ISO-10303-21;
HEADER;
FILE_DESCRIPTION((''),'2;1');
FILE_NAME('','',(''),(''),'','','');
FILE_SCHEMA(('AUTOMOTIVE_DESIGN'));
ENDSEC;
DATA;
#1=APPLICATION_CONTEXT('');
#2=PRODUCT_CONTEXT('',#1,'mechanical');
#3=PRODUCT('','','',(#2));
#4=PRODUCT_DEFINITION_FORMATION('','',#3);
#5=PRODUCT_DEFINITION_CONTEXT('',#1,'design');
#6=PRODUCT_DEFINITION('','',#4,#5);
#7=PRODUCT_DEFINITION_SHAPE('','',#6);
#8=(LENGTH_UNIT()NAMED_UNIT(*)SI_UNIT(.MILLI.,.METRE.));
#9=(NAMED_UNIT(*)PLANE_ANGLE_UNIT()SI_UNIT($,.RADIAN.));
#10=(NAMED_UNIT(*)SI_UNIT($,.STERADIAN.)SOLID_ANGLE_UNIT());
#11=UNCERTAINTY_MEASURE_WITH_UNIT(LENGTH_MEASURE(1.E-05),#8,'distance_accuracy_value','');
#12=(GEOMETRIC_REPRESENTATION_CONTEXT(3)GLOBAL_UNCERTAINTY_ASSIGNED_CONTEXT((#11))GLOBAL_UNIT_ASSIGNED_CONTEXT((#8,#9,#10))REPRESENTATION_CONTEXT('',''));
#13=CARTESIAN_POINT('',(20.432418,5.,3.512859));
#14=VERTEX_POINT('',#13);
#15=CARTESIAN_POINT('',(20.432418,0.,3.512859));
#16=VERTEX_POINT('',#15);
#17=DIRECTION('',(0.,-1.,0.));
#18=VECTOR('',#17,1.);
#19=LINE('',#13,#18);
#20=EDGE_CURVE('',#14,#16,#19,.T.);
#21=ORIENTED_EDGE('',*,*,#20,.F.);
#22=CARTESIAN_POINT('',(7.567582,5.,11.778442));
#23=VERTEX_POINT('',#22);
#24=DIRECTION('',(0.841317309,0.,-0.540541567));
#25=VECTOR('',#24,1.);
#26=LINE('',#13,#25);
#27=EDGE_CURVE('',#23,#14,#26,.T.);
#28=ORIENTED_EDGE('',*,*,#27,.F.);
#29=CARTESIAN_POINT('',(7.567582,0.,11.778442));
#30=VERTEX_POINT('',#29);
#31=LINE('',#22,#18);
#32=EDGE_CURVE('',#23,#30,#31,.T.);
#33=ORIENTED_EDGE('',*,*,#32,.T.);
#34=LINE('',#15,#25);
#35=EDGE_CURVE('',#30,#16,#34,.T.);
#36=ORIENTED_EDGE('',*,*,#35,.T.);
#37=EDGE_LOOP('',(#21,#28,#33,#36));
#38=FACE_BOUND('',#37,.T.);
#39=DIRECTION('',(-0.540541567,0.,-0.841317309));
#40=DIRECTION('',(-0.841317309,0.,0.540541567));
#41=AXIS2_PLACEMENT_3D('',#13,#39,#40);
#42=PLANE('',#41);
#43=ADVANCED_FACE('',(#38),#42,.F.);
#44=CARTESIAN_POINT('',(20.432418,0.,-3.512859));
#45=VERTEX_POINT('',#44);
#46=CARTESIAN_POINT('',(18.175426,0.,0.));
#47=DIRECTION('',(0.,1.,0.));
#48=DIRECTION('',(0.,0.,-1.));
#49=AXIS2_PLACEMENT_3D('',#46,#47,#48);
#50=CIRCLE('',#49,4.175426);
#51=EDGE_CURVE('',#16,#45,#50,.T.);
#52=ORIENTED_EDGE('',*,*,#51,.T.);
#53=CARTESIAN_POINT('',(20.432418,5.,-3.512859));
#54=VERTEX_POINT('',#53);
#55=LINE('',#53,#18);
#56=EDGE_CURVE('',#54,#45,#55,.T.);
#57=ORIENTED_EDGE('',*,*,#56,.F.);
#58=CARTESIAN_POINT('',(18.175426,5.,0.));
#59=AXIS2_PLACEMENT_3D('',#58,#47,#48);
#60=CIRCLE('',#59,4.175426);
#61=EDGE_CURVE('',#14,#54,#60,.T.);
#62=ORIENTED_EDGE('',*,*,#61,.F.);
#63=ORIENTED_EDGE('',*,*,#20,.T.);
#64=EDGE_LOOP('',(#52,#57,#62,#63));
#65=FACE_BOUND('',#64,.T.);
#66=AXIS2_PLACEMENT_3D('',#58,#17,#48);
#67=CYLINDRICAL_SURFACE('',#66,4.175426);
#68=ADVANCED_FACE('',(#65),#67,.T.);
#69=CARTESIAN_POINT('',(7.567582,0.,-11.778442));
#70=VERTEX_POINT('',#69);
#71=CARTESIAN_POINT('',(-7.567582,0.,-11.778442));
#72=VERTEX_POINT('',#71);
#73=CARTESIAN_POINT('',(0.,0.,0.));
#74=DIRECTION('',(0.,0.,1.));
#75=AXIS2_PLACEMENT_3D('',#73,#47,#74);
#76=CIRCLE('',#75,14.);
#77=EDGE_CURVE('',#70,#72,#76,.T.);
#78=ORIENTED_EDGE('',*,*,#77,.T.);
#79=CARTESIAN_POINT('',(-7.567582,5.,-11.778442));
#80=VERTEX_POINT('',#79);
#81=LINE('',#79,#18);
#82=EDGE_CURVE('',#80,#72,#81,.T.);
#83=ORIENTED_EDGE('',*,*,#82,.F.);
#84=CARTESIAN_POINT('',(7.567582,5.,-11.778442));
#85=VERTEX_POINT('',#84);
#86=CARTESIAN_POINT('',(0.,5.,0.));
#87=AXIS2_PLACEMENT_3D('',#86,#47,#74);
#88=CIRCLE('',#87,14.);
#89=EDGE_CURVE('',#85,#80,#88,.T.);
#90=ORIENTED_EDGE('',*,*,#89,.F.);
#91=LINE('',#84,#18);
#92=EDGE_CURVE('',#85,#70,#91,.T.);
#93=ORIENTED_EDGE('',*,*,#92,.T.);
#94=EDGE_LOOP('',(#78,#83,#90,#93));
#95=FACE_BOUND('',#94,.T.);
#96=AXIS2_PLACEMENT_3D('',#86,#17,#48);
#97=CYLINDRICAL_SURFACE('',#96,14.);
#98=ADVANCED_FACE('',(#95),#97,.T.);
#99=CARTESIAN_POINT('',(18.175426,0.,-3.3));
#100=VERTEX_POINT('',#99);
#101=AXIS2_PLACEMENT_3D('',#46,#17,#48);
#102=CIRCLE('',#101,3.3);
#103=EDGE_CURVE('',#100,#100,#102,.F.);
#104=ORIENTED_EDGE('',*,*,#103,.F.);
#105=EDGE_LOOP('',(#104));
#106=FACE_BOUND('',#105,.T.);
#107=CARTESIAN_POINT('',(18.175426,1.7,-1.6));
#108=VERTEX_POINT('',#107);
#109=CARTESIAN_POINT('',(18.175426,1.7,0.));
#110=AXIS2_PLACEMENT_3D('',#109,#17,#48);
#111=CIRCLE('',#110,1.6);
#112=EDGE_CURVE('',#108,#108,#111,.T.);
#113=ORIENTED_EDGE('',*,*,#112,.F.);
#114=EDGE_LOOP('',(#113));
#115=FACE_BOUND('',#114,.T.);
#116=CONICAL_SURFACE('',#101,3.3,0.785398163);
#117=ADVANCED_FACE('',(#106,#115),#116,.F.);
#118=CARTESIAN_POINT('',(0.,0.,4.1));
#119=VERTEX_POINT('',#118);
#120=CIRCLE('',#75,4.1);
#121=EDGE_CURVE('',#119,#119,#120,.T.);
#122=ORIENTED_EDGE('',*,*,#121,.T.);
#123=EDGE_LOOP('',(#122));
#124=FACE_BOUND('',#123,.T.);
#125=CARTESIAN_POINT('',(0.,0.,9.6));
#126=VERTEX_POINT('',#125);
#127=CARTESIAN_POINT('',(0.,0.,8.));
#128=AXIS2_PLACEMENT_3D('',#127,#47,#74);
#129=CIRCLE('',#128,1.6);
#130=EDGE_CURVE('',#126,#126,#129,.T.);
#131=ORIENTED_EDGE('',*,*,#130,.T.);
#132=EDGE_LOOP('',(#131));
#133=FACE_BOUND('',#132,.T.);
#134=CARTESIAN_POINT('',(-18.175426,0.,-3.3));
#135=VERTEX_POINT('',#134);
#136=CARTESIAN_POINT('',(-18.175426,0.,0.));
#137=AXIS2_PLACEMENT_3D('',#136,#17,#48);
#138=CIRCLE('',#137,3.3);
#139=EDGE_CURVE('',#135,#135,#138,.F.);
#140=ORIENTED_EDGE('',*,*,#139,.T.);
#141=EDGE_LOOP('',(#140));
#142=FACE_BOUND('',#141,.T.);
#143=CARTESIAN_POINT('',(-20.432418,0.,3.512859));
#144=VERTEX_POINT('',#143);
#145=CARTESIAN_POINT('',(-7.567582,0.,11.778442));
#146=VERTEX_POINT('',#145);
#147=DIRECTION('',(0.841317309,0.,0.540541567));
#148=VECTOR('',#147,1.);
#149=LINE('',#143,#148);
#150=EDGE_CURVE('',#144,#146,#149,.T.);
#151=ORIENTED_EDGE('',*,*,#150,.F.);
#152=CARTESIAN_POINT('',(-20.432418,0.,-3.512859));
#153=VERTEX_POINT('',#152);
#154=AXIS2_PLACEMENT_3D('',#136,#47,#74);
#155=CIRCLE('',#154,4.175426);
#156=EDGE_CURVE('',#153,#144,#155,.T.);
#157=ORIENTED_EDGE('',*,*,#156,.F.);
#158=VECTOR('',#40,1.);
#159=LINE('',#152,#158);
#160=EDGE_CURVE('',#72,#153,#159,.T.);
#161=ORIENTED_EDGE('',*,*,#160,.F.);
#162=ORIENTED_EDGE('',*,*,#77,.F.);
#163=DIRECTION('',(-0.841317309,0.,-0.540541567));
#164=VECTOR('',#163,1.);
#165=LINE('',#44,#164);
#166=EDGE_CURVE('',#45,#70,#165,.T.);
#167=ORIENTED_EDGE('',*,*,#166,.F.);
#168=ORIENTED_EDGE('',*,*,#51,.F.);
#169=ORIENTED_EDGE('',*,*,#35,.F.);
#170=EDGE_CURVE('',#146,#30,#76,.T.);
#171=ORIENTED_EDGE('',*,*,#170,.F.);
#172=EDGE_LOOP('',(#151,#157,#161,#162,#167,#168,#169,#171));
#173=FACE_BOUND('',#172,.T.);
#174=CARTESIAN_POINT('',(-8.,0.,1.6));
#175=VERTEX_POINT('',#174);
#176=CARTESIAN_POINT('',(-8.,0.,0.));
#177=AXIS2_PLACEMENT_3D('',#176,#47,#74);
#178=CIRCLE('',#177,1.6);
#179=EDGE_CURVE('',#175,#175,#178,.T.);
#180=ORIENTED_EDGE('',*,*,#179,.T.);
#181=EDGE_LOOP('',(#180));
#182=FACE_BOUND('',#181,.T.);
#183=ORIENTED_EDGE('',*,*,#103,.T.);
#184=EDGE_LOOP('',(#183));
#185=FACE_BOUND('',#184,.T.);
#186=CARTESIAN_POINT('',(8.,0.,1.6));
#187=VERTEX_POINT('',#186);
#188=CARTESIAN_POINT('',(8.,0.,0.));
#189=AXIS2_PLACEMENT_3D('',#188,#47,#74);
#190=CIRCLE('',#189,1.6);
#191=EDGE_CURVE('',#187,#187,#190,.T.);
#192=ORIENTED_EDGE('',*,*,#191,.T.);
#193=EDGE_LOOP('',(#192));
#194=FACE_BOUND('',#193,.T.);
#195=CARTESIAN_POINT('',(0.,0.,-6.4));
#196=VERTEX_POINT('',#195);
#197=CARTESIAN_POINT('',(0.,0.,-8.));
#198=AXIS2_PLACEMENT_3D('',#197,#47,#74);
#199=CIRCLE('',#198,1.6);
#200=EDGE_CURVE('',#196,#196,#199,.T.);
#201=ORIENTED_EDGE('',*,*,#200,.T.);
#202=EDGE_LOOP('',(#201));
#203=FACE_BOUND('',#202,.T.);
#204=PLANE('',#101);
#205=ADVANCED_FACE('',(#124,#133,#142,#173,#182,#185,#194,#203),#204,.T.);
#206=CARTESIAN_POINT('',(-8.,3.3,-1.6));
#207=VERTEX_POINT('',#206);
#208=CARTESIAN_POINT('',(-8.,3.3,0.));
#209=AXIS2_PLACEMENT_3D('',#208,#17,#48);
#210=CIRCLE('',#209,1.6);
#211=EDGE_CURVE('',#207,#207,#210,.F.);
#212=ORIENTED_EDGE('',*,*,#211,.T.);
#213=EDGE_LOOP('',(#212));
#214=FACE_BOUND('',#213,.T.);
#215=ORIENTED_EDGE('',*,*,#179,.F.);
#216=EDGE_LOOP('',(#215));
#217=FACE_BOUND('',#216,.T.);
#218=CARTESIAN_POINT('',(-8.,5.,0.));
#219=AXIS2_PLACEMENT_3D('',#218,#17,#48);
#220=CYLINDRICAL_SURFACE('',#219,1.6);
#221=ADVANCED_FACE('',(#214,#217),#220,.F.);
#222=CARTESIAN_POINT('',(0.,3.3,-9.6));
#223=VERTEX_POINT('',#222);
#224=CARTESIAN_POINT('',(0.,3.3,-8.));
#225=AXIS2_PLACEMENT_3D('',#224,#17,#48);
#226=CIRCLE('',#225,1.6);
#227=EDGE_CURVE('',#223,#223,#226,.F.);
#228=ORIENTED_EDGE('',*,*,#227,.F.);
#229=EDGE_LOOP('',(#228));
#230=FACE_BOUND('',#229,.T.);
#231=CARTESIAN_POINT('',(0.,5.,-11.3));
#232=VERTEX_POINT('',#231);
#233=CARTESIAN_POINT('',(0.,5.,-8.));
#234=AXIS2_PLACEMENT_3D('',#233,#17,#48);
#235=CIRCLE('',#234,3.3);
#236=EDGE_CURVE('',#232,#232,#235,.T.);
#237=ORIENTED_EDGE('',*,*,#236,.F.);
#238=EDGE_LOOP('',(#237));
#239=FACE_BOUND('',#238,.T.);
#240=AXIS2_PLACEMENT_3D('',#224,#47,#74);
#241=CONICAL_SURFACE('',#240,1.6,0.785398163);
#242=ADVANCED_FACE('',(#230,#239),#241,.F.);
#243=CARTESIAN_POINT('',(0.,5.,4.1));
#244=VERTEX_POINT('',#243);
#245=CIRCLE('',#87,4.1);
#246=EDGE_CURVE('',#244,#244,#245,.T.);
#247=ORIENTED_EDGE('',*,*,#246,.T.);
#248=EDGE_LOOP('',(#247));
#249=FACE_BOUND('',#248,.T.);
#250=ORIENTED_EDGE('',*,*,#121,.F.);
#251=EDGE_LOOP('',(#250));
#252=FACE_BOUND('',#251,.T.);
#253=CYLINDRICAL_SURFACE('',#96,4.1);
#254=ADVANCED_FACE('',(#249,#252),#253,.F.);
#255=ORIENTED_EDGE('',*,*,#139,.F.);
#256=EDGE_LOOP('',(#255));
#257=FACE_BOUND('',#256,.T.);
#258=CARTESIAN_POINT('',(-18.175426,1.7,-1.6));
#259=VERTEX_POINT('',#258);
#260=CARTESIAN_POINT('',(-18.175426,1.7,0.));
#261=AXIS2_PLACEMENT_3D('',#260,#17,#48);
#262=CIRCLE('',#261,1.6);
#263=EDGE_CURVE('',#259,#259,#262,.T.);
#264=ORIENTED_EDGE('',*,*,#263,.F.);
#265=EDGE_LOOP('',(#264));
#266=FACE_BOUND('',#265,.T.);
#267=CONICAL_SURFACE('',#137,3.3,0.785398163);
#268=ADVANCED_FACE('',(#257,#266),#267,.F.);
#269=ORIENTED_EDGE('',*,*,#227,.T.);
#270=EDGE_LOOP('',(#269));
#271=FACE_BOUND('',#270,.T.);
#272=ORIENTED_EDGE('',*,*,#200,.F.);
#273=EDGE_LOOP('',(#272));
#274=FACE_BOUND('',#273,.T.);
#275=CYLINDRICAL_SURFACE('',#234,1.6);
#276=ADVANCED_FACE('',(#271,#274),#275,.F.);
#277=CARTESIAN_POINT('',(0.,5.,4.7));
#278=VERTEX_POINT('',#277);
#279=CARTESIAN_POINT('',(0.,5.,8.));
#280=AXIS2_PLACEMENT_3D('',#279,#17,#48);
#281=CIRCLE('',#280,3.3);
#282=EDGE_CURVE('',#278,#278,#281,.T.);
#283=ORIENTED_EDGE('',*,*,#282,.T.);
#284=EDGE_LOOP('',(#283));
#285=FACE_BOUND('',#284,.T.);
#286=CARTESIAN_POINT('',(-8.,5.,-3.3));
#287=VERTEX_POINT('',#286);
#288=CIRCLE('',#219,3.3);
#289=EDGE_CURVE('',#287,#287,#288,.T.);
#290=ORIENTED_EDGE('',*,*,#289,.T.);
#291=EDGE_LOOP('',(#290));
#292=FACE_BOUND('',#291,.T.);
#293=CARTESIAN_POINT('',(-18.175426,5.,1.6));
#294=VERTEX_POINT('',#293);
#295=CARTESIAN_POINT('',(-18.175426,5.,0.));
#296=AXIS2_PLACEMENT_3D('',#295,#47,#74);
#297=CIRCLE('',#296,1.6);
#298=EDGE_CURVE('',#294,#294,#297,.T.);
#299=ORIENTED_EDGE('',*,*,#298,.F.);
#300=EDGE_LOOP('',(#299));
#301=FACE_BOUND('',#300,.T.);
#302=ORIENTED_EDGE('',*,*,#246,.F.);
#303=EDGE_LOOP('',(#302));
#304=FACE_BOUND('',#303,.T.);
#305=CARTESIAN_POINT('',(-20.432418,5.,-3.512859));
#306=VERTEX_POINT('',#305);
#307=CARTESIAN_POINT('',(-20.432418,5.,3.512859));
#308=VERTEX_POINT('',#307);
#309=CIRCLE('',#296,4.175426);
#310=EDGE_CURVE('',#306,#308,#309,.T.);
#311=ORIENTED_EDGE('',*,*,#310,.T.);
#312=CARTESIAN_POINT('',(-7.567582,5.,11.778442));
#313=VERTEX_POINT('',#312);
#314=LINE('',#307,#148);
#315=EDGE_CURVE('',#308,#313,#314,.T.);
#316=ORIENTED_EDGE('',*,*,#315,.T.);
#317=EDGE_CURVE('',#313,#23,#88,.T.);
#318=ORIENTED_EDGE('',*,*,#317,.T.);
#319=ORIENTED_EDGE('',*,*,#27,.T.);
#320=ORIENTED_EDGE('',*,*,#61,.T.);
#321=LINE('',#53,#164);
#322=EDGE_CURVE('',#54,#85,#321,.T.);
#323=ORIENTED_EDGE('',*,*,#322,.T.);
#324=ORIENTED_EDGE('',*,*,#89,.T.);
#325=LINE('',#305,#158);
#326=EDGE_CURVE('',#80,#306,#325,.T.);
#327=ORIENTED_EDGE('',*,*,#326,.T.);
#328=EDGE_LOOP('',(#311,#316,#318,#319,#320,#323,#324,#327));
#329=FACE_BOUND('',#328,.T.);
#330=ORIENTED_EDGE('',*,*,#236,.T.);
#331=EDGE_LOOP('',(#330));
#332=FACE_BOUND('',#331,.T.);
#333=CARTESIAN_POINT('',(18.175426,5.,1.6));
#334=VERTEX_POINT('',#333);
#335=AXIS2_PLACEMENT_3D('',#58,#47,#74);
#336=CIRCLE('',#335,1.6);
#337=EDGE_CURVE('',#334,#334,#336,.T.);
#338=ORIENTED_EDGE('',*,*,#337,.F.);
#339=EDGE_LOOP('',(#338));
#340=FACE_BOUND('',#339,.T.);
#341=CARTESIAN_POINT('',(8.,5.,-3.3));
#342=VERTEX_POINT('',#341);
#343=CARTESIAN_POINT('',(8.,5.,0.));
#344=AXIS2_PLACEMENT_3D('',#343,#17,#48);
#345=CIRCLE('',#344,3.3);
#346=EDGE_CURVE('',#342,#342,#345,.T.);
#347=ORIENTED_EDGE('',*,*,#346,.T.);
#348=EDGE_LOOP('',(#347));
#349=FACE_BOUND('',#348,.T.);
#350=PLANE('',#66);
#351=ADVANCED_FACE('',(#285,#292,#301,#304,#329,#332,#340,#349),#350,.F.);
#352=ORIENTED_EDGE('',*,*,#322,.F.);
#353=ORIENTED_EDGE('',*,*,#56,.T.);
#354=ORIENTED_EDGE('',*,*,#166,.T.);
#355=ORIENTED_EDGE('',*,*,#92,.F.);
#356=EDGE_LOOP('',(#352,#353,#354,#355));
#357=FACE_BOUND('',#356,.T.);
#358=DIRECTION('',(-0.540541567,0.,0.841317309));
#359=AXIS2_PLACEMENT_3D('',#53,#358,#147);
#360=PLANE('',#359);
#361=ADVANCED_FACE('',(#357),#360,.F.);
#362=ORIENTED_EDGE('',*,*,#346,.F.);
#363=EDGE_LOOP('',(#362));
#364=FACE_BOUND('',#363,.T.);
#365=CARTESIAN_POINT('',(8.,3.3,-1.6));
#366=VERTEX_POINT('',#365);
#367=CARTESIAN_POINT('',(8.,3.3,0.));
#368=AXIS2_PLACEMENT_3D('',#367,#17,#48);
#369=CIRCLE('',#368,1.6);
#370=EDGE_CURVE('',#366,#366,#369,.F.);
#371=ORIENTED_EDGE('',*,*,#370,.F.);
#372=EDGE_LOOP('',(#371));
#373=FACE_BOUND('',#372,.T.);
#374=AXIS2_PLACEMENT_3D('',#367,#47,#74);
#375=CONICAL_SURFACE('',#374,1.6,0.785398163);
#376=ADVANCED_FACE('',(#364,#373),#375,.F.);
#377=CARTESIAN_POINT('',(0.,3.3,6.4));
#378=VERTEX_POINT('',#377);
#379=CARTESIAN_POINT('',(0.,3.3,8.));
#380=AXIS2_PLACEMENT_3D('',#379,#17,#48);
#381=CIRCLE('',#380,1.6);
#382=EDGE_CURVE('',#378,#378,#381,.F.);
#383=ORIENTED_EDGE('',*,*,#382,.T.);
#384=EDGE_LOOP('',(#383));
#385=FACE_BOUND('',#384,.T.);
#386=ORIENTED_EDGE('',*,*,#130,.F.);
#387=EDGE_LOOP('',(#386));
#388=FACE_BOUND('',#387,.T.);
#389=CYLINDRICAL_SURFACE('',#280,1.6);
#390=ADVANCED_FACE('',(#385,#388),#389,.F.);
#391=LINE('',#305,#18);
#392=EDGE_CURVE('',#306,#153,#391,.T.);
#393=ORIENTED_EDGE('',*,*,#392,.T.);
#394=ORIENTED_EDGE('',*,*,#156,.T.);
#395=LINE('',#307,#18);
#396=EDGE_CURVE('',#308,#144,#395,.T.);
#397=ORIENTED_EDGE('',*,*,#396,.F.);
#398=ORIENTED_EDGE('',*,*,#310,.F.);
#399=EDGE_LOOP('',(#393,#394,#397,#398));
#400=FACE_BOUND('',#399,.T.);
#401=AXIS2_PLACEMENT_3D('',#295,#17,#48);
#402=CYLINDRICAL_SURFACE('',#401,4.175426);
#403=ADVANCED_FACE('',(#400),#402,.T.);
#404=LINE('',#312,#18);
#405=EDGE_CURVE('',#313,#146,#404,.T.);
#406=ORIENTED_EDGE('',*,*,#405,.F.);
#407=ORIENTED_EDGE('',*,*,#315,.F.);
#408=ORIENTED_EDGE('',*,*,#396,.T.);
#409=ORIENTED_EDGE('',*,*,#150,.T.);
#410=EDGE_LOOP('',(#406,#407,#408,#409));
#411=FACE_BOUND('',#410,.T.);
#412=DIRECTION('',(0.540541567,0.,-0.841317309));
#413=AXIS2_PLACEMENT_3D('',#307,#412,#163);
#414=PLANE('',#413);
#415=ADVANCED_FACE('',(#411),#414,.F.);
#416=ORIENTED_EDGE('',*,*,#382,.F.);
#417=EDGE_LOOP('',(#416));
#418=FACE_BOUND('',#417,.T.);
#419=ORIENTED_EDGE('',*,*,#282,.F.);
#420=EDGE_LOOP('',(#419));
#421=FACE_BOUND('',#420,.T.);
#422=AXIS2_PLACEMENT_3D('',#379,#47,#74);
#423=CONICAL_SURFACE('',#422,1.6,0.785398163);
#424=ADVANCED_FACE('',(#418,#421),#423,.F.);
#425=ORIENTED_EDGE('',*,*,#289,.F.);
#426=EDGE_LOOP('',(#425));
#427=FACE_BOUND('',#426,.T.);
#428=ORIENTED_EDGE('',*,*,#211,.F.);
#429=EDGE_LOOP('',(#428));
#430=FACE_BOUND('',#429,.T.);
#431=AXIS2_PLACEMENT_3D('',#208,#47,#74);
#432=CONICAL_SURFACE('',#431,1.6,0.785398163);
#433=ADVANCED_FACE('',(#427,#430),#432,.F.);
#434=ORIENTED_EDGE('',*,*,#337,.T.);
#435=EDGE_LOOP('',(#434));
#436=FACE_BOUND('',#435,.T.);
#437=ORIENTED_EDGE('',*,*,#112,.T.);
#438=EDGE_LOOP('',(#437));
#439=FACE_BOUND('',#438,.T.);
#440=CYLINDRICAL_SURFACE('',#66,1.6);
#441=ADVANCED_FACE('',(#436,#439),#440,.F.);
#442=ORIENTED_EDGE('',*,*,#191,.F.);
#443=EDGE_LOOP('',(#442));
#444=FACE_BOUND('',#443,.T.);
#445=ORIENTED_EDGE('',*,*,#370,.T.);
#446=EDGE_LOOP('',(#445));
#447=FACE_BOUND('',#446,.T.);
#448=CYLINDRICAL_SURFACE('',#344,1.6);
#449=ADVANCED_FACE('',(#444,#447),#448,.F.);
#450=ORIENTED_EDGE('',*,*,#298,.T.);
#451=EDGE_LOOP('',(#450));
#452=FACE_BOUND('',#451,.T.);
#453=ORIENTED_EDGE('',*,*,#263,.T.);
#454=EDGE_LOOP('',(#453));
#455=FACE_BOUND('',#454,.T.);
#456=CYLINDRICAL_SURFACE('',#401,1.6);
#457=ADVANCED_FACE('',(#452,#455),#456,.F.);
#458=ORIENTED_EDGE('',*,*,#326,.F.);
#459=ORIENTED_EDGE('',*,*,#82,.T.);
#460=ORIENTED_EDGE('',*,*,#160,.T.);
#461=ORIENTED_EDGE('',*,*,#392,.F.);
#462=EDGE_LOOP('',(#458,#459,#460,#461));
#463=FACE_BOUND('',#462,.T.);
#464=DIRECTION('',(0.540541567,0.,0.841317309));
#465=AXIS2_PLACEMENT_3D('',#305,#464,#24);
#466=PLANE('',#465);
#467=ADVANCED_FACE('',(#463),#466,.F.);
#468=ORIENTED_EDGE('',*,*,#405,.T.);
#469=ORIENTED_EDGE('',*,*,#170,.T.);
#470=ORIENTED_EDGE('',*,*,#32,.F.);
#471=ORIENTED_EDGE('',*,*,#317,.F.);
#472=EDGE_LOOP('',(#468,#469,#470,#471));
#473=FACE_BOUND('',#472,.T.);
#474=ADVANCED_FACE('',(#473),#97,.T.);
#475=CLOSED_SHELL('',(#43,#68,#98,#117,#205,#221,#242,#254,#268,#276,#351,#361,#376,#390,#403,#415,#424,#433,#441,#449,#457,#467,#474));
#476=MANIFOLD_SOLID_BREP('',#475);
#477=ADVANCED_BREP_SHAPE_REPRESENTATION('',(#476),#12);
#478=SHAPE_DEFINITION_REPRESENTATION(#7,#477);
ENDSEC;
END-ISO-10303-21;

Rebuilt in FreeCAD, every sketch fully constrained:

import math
import FreeCAD as App
import Part
import Sketcher
Q = App.Units.Quantity


def edges_at(feature, points):
    """Names of the edges that pass closest to the given points."""
    edges = feature.Shape.Edges
    near = lambda p: min(range(len(edges)), key=lambda i: edges[i].distToShape(Part.Vertex(*p))[0])
    return sorted({f"Edge{near(p) + 1}" for p in points})

doc = App.newDocument("Part")
body = doc.addObject("PartDesign::Body", "Body")

sketch1 = doc.addObject("Sketcher::SketchObject", "Sketch")
body.addObject(sketch1)
sketch1.AttachmentSupport = (doc.XZ_Plane, [""])
sketch1.MapMode = "FlatFace"
sketch1.addGeometry([
    Part.LineSegment(App.Vector(-7.6, -11.8, 0), App.Vector(-20.4, -3.5, 0)),
    Part.ArcOfCircle(Part.Circle(App.Vector(-18.2, 0, 0), App.Vector(0, 0, 1), 4.2), math.radians(123), math.radians(237)),
    Part.LineSegment(App.Vector(-20.4, 3.5, 0), App.Vector(-7.6, 11.8, 0)),
    Part.ArcOfCircle(Part.Circle(App.Vector(0, 0, 0), App.Vector(0, 0, 1), 14), math.radians(57), math.radians(123)),
    Part.LineSegment(App.Vector(7.6, 11.8, 0), App.Vector(20.4, 3.5, 0)),
    Part.ArcOfCircle(Part.Circle(App.Vector(18.2, 0, 0), App.Vector(0, 0, 1), 4.2), math.radians(-57), math.radians(57)),
    Part.LineSegment(App.Vector(20.4, -3.5, 0), App.Vector(7.6, -11.8, 0)),
    Part.ArcOfCircle(Part.Circle(App.Vector(0, 0, 0), App.Vector(0, 0, 1), 14), math.radians(-123), math.radians(-57)),
    Part.Circle(App.Vector(0, 8, 0), App.Vector(0, 0, 1), 1.6),
    Part.Circle(App.Vector(18.2, 0, 0), App.Vector(0, 0, 1), 1.6),
    Part.Circle(App.Vector(8, 0, 0), App.Vector(0, 0, 1), 1.6),
    Part.Circle(App.Vector(0, 0, 0), App.Vector(0, 0, 1), 4.1),
    Part.Circle(App.Vector(-8, 0, 0), App.Vector(0, 0, 1), 1.6),
    Part.Circle(App.Vector(-18.2, 0, 0), App.Vector(0, 0, 1), 1.6),
    Part.Circle(App.Vector(0, -8, 0), App.Vector(0, 0, 1), 1.6),
], False)
sketch1.addConstraint([
    Sketcher.Constraint("Tangent", 0, 2, 1, 2),
    Sketcher.Constraint("Tangent", 1, 1, 2, 1),
    Sketcher.Constraint("Tangent", 2, 2, 3, 2),
    Sketcher.Constraint("Tangent", 3, 1, 4, 1),
    Sketcher.Constraint("Tangent", 4, 2, 5, 2),
    Sketcher.Constraint("Tangent", 5, 1, 6, 1),
    Sketcher.Constraint("Tangent", 6, 2, 7, 2),
    Sketcher.Constraint("Tangent", 7, 1, 0, 1),
    Sketcher.Constraint("Coincident", 3, 3, -1, 1),
    Sketcher.Constraint("Coincident", 7, 3, -1, 1),
    Sketcher.Constraint("Coincident", 11, 3, -1, 1),
    Sketcher.Constraint("Coincident", 9, 3, 5, 3),
    Sketcher.Constraint("Coincident", 13, 3, 1, 3),
    Sketcher.Constraint("Equal", 1, 5),
    Sketcher.Constraint("Equal", 3, 7),
    Sketcher.Constraint("Equal", 8, 9),
    Sketcher.Constraint("Equal", 9, 10),
    Sketcher.Constraint("Equal", 10, 12),
    Sketcher.Constraint("Equal", 12, 13),
    Sketcher.Constraint("Equal", 13, 14),
    Sketcher.Constraint("Symmetric", 1, 3, 5, 3, -1, 1),
    Sketcher.Constraint("Symmetric", 10, 3, 12, 3, -1, 1),
    Sketcher.Constraint("Symmetric", 8, 3, 14, 3, -1, 1),
    Sketcher.Constraint("PointOnObject", 1, 3, -1),
    Sketcher.Constraint("PointOnObject", 8, 3, -2),
    Sketcher.Constraint("PointOnObject", 10, 3, -1),
    Sketcher.Constraint("Radius", 3, Q("14 mm")),
    Sketcher.Constraint("Diameter", 8, Q("3.2 mm")),
    Sketcher.Constraint("Diameter", 11, Q("8.2 mm")),
    Sketcher.Constraint("DistanceY", -1, 1, 8, 3, Q("8 mm")),
    Sketcher.Constraint("DistanceX", -1, 1, 10, 3, Q("8 mm")),
    Sketcher.Constraint("Radius", 1, Q("4.175426 mm")),
    Sketcher.Constraint("Distance", 0, Q("15.291301 mm")),
])
pad1 = doc.addObject("PartDesign::Pad", "Pad")
body.addObject(pad1)
pad1.Profile = sketch1
pad1.Length = 5
pad1.Reversed = True
doc.recompute()

chamfer = doc.addObject("PartDesign::Chamfer", "Chamfer")
body.addObject(chamfer)
chamfer.Base = (pad1, edges_at(pad1, [
    (0, 5, -9.6),
    (8, 5, -1.6),
    (-8, 5, -1.6),
    (0, 5, 6.4),
]))
chamfer.Size = 1.7
doc.recompute()

chamfer2 = doc.addObject("PartDesign::Chamfer", "Chamfer001")
body.addObject(chamfer2)
chamfer2.Base = (chamfer, edges_at(chamfer, [(-18.175, 0, -1.6), (18.175, 0, -1.6)]))
chamfer2.Size = 1.7

doc.recompute()
